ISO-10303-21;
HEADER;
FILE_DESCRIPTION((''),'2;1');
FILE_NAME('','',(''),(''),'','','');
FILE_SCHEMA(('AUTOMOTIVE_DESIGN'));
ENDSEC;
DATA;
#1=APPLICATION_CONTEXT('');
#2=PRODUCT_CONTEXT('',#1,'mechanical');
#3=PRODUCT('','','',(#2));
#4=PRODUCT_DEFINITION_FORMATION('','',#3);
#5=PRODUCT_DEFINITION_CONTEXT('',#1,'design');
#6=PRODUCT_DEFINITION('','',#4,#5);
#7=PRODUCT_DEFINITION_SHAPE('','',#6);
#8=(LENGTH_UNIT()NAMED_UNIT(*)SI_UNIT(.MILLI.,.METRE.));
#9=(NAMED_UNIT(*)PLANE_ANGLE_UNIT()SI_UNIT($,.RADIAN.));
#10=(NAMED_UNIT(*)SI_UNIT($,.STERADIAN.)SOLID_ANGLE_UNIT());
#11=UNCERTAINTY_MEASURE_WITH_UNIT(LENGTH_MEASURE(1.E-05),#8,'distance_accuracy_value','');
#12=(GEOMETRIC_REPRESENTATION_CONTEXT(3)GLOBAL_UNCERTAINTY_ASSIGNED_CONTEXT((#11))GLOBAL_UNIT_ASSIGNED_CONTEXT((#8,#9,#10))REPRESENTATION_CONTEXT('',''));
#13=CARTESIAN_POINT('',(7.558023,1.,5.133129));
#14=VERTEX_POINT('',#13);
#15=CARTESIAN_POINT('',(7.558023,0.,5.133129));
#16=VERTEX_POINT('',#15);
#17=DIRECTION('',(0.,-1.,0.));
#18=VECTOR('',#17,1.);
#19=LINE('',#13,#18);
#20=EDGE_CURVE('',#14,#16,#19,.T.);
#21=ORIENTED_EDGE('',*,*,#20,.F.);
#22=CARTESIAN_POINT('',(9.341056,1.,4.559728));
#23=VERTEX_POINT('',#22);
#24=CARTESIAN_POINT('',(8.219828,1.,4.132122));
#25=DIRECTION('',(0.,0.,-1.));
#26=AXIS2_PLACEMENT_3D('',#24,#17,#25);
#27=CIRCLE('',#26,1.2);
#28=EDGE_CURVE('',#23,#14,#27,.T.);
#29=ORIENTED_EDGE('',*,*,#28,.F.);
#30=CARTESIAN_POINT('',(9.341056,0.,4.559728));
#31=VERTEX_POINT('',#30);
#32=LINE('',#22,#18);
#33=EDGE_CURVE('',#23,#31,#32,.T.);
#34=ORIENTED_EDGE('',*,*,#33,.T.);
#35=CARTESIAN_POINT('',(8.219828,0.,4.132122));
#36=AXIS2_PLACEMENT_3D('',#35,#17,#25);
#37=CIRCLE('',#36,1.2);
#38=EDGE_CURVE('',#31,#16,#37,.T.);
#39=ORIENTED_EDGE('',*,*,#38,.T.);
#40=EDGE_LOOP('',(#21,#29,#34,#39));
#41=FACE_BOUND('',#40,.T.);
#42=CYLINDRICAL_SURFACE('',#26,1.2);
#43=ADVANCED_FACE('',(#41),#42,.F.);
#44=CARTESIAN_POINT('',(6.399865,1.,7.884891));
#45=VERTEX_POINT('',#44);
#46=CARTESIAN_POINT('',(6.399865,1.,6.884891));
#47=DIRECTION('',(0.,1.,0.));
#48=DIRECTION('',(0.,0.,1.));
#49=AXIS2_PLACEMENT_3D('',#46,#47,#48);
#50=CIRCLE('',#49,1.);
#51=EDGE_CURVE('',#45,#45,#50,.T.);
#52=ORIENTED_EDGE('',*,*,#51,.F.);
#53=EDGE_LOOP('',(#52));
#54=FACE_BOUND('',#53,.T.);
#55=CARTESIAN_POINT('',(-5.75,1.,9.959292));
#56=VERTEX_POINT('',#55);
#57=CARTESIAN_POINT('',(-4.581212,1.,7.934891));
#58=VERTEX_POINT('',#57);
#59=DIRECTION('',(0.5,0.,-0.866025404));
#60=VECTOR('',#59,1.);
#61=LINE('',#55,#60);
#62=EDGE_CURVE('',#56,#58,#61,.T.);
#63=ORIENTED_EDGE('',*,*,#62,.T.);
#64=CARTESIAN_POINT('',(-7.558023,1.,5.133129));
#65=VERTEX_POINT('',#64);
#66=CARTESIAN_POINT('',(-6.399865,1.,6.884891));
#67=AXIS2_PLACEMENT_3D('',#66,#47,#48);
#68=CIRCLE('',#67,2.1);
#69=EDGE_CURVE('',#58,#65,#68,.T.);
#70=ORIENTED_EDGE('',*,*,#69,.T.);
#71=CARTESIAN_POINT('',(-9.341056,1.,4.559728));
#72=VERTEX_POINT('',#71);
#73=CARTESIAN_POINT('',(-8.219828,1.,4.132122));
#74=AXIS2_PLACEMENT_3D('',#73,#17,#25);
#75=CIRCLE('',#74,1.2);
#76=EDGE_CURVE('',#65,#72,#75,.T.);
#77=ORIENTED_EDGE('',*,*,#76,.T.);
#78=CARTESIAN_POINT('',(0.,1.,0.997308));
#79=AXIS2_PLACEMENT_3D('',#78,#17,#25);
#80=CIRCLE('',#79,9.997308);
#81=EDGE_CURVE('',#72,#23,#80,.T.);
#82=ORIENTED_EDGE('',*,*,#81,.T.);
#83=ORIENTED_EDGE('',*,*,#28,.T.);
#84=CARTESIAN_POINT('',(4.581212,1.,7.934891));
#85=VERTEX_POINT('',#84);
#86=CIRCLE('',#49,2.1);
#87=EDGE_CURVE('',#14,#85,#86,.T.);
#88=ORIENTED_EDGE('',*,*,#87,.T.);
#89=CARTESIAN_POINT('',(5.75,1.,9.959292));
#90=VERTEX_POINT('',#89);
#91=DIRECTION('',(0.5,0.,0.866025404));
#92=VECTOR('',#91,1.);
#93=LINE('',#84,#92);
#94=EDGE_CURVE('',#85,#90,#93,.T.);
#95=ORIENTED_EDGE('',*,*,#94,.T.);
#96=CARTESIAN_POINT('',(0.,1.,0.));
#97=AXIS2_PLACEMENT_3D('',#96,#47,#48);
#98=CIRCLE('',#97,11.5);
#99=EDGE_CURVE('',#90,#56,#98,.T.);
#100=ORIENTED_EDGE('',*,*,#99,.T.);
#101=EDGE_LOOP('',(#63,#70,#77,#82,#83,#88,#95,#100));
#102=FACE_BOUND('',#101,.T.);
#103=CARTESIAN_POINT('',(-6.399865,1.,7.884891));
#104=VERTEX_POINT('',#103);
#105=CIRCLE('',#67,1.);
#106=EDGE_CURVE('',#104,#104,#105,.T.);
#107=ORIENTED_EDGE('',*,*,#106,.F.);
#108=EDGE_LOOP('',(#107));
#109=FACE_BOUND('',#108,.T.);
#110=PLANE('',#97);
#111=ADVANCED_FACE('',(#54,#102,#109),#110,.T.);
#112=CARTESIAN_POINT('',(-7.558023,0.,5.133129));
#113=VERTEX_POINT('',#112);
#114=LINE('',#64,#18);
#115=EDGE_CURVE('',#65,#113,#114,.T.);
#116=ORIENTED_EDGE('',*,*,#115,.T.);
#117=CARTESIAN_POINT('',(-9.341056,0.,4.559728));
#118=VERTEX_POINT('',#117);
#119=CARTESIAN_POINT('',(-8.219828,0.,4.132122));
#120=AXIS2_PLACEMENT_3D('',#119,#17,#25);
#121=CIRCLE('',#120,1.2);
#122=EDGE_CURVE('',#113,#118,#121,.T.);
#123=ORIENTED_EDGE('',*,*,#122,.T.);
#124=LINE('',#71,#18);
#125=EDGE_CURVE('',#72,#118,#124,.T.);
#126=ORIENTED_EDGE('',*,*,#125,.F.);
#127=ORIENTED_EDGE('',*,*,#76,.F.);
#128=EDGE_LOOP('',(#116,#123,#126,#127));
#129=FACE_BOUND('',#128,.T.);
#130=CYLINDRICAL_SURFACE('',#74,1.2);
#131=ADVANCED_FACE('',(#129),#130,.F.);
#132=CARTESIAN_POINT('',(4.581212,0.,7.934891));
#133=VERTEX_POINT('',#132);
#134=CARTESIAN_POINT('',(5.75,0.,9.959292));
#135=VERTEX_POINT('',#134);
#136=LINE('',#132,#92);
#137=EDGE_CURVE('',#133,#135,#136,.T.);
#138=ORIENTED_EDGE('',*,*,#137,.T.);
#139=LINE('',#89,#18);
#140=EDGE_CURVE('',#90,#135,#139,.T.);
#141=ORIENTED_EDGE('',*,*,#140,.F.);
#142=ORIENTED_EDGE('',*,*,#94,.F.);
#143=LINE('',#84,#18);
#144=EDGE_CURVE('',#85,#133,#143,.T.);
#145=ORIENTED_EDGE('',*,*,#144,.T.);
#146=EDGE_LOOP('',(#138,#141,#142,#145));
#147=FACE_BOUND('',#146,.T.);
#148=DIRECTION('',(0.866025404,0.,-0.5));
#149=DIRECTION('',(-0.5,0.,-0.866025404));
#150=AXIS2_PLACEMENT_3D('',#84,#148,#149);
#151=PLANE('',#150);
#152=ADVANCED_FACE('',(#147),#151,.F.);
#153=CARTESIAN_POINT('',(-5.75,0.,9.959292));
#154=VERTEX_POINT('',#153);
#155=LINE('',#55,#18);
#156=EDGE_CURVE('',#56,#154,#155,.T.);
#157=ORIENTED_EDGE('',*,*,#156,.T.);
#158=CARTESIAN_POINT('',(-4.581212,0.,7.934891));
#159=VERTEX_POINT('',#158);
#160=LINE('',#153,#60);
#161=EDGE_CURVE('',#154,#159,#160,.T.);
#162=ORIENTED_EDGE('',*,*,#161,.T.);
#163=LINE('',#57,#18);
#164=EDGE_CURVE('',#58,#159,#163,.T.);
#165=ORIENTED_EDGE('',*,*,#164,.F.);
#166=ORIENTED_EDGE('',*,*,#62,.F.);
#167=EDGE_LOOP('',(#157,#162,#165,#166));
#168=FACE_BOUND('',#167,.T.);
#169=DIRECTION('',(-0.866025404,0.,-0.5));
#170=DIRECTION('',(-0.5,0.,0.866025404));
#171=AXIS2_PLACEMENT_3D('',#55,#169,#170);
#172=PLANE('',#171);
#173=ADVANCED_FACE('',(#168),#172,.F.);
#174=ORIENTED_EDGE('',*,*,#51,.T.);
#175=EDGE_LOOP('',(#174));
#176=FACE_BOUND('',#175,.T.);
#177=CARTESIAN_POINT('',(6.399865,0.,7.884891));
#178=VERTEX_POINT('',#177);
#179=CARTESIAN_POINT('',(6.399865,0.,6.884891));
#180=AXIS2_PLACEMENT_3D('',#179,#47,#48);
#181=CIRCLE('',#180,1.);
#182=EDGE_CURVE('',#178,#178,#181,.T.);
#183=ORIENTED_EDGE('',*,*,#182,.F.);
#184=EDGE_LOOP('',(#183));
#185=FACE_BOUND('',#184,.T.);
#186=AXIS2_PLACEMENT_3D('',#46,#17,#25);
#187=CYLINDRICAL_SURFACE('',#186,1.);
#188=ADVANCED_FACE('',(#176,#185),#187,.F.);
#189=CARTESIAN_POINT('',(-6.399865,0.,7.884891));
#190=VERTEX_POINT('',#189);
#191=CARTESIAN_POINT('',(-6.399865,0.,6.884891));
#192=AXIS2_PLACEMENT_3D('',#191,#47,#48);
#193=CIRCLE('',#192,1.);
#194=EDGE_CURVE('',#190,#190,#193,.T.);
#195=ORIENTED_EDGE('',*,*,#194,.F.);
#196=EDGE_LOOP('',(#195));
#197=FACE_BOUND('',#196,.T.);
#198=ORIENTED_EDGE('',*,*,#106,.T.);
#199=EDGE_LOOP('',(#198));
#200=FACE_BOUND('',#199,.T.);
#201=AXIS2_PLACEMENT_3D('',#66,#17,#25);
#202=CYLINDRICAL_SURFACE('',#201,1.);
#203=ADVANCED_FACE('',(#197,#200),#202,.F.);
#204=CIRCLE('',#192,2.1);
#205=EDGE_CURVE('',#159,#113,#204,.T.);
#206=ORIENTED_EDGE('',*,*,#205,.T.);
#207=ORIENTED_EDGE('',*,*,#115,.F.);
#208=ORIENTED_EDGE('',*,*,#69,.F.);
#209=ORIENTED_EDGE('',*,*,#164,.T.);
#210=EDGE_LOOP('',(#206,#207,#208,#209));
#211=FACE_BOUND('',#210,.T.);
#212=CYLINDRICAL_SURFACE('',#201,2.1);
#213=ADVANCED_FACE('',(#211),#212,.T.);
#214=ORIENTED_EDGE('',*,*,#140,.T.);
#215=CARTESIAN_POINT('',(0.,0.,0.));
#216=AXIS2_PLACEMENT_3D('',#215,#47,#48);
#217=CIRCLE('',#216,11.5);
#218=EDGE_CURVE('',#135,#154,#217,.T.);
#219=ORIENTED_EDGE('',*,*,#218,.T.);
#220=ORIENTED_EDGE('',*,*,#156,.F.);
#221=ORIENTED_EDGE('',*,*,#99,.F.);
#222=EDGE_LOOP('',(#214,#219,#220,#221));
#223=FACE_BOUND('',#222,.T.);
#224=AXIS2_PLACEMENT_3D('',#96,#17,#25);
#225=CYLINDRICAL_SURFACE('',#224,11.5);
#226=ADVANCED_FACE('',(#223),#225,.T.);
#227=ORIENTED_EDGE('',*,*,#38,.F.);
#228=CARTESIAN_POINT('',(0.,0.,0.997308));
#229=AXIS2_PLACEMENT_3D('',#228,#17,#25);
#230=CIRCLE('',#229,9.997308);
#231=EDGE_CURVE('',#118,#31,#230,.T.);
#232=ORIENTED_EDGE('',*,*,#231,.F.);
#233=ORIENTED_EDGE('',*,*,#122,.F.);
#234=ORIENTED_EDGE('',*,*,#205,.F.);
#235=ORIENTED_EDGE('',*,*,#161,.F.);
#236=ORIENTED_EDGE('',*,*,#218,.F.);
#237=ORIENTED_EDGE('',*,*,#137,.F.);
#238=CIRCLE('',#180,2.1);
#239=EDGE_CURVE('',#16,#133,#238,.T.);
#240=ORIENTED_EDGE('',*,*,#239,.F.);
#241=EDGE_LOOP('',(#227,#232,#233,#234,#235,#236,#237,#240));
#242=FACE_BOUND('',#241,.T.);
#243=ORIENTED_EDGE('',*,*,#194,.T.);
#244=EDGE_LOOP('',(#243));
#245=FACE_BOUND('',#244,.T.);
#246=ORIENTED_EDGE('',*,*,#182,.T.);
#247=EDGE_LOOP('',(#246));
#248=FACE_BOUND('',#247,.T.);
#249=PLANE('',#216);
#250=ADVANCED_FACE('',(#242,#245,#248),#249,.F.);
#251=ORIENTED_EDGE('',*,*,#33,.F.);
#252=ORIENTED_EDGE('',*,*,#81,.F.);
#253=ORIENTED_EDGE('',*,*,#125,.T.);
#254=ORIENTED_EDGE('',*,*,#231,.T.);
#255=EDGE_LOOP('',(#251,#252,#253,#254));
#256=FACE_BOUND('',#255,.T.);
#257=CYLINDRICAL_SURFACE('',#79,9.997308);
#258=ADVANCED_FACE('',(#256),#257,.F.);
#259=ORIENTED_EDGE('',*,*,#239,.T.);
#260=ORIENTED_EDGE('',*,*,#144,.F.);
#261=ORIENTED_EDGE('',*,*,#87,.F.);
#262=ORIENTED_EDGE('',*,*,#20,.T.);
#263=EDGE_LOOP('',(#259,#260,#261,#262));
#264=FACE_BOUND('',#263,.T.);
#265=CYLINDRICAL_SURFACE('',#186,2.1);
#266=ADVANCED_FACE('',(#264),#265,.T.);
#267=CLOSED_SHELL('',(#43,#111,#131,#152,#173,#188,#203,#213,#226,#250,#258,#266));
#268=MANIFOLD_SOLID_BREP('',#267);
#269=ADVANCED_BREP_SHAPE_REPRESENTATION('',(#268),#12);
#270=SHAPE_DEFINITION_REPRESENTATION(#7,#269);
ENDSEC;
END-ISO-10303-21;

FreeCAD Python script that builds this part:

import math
import FreeCAD as App
import Part
import Sketcher
Q = App.Units.Quantity

doc = App.newDocument("Part")
body = doc.addObject("PartDesign::Body", "Body")

sketch1 = body.newObject("Sketcher::SketchObject", "Sketch")
sketch1.AttachmentSupport = (doc.getObject("XZ_Plane"), [""])
sketch1.MapMode = "FlatFace"
sketch1.addGeometry(Part.LineSegment(App.Vector(-5.8, 10, 0), App.Vector(-4.6, 7.9, 0)), False)
sketch1.addGeometry(Part.ArcOfCircle(Part.Circle(App.Vector(-6.4, 6.9, 0), App.Vector(0, 0, 1), 2.1), math.radians(-123), math.radians(30)), False)
sketch1.addGeometry(Part.ArcOfCircle(Part.Circle(App.Vector(-8.2, 4.1, 0), App.Vector(0, 0, 1), 1.2), math.radians(57), math.radians(159)), False)
sketch1.addGeometry(Part.ArcOfCircle(Part.Circle(App.Vector(0, 1, 0), App.Vector(0, 0, 1), 10), math.radians(159), math.radians(381)), False)
sketch1.addGeometry(Part.ArcOfCircle(Part.Circle(App.Vector(8.2, 4.1, 0), App.Vector(0, 0, 1), 1.2), math.radians(21), math.radians(123)), False)
sketch1.addGeometry(Part.ArcOfCircle(Part.Circle(App.Vector(6.4, 6.9, 0), App.Vector(0, 0, 1), 2.1), math.radians(150), math.radians(303)), False)
sketch1.addGeometry(Part.LineSegment(App.Vector(4.6, 7.9, 0), App.Vector(5.8, 10, 0)), False)
sketch1.addGeometry(Part.ArcOfCircle(Part.Circle(App.Vector(0, 0, 0), App.Vector(0, 0, 1), 11.5), math.radians(120), math.radians(420)), False)
sketch1.addGeometry(Part.Circle(App.Vector(-6.4, 6.9, 0), App.Vector(0, 0, 1), 1), False)
sketch1.addGeometry(Part.Circle(App.Vector(6.4, 6.9, 0), App.Vector(0, 0, 1), 1), False)
sketch1.addConstraint(Sketcher.Constraint("Tangent", 0, 2, 1, 2))
sketch1.addConstraint(Sketcher.Constraint("Tangent", 1, 1, 2, 1))
sketch1.addConstraint(Sketcher.Constraint("Tangent", 2, 2, 3, 1))
sketch1.addConstraint(Sketcher.Constraint("Tangent", 3, 2, 4, 1))
sketch1.addConstraint(Sketcher.Constraint("Tangent", 4, 2, 5, 2))
sketch1.addConstraint(Sketcher.Constraint("Tangent", 5, 1, 6, 1))
sketch1.addConstraint(Sketcher.Constraint("Coincident", 6, 2, 7, 2))
sketch1.addConstraint(Sketcher.Constraint("Coincident", 7, 1, 0, 1))
sketch1.addConstraint(Sketcher.Constraint("Coincident", 7, 3, -1, 1))
sketch1.addConstraint(Sketcher.Constraint("Coincident", 8, 3, 1, 3))
sketch1.addConstraint(Sketcher.Constraint("Coincident", 9, 3, 5, 3))
sketch1.addConstraint(Sketcher.Constraint("Equal", 2, 4))
sketch1.addConstraint(Sketcher.Constraint("Equal", 1, 5))
sketch1.addConstraint(Sketcher.Constraint("Equal", 8, 9))
sketch1.addConstraint(Sketcher.Constraint("Symmetric", 2, 3, 4, 3, -2))
sketch1.addConstraint(Sketcher.Constraint("Symmetric", 0, 2, 5, 1, -2))
sketch1.addConstraint(Sketcher.Constraint("Diameter", 8, 2.0))
sketch1.addConstraint(Sketcher.Constraint("Radius", 1, 2.1))
sketch1.addConstraint(Sketcher.Constraint("Radius", 2, 1.2))
sketch1.addConstraint(Sketcher.Constraint("Radius", 7, 11.5))
sketch1.addConstraint(Sketcher.Constraint("Angle", 0, Q("-60 deg")))
sketch1.addConstraint(Sketcher.Constraint("DistanceX", -1, 1, 6, 2, 5.75))
sketch1.addConstraint(Sketcher.Constraint("Radius", 3, 9.997308))
sketch1.addConstraint(Sketcher.Constraint("DistanceY", 2, 2, 1, 1, 0.573401))
sketch1.addConstraint(Sketcher.Constraint("DistanceY", 5, 1, 6, 2, 2.024401))
pad1 = body.newObject("PartDesign::Pad", "Pad")
pad1.Profile = sketch1
pad1.Length = 1
pad1.Reversed = True

doc.recompute()
